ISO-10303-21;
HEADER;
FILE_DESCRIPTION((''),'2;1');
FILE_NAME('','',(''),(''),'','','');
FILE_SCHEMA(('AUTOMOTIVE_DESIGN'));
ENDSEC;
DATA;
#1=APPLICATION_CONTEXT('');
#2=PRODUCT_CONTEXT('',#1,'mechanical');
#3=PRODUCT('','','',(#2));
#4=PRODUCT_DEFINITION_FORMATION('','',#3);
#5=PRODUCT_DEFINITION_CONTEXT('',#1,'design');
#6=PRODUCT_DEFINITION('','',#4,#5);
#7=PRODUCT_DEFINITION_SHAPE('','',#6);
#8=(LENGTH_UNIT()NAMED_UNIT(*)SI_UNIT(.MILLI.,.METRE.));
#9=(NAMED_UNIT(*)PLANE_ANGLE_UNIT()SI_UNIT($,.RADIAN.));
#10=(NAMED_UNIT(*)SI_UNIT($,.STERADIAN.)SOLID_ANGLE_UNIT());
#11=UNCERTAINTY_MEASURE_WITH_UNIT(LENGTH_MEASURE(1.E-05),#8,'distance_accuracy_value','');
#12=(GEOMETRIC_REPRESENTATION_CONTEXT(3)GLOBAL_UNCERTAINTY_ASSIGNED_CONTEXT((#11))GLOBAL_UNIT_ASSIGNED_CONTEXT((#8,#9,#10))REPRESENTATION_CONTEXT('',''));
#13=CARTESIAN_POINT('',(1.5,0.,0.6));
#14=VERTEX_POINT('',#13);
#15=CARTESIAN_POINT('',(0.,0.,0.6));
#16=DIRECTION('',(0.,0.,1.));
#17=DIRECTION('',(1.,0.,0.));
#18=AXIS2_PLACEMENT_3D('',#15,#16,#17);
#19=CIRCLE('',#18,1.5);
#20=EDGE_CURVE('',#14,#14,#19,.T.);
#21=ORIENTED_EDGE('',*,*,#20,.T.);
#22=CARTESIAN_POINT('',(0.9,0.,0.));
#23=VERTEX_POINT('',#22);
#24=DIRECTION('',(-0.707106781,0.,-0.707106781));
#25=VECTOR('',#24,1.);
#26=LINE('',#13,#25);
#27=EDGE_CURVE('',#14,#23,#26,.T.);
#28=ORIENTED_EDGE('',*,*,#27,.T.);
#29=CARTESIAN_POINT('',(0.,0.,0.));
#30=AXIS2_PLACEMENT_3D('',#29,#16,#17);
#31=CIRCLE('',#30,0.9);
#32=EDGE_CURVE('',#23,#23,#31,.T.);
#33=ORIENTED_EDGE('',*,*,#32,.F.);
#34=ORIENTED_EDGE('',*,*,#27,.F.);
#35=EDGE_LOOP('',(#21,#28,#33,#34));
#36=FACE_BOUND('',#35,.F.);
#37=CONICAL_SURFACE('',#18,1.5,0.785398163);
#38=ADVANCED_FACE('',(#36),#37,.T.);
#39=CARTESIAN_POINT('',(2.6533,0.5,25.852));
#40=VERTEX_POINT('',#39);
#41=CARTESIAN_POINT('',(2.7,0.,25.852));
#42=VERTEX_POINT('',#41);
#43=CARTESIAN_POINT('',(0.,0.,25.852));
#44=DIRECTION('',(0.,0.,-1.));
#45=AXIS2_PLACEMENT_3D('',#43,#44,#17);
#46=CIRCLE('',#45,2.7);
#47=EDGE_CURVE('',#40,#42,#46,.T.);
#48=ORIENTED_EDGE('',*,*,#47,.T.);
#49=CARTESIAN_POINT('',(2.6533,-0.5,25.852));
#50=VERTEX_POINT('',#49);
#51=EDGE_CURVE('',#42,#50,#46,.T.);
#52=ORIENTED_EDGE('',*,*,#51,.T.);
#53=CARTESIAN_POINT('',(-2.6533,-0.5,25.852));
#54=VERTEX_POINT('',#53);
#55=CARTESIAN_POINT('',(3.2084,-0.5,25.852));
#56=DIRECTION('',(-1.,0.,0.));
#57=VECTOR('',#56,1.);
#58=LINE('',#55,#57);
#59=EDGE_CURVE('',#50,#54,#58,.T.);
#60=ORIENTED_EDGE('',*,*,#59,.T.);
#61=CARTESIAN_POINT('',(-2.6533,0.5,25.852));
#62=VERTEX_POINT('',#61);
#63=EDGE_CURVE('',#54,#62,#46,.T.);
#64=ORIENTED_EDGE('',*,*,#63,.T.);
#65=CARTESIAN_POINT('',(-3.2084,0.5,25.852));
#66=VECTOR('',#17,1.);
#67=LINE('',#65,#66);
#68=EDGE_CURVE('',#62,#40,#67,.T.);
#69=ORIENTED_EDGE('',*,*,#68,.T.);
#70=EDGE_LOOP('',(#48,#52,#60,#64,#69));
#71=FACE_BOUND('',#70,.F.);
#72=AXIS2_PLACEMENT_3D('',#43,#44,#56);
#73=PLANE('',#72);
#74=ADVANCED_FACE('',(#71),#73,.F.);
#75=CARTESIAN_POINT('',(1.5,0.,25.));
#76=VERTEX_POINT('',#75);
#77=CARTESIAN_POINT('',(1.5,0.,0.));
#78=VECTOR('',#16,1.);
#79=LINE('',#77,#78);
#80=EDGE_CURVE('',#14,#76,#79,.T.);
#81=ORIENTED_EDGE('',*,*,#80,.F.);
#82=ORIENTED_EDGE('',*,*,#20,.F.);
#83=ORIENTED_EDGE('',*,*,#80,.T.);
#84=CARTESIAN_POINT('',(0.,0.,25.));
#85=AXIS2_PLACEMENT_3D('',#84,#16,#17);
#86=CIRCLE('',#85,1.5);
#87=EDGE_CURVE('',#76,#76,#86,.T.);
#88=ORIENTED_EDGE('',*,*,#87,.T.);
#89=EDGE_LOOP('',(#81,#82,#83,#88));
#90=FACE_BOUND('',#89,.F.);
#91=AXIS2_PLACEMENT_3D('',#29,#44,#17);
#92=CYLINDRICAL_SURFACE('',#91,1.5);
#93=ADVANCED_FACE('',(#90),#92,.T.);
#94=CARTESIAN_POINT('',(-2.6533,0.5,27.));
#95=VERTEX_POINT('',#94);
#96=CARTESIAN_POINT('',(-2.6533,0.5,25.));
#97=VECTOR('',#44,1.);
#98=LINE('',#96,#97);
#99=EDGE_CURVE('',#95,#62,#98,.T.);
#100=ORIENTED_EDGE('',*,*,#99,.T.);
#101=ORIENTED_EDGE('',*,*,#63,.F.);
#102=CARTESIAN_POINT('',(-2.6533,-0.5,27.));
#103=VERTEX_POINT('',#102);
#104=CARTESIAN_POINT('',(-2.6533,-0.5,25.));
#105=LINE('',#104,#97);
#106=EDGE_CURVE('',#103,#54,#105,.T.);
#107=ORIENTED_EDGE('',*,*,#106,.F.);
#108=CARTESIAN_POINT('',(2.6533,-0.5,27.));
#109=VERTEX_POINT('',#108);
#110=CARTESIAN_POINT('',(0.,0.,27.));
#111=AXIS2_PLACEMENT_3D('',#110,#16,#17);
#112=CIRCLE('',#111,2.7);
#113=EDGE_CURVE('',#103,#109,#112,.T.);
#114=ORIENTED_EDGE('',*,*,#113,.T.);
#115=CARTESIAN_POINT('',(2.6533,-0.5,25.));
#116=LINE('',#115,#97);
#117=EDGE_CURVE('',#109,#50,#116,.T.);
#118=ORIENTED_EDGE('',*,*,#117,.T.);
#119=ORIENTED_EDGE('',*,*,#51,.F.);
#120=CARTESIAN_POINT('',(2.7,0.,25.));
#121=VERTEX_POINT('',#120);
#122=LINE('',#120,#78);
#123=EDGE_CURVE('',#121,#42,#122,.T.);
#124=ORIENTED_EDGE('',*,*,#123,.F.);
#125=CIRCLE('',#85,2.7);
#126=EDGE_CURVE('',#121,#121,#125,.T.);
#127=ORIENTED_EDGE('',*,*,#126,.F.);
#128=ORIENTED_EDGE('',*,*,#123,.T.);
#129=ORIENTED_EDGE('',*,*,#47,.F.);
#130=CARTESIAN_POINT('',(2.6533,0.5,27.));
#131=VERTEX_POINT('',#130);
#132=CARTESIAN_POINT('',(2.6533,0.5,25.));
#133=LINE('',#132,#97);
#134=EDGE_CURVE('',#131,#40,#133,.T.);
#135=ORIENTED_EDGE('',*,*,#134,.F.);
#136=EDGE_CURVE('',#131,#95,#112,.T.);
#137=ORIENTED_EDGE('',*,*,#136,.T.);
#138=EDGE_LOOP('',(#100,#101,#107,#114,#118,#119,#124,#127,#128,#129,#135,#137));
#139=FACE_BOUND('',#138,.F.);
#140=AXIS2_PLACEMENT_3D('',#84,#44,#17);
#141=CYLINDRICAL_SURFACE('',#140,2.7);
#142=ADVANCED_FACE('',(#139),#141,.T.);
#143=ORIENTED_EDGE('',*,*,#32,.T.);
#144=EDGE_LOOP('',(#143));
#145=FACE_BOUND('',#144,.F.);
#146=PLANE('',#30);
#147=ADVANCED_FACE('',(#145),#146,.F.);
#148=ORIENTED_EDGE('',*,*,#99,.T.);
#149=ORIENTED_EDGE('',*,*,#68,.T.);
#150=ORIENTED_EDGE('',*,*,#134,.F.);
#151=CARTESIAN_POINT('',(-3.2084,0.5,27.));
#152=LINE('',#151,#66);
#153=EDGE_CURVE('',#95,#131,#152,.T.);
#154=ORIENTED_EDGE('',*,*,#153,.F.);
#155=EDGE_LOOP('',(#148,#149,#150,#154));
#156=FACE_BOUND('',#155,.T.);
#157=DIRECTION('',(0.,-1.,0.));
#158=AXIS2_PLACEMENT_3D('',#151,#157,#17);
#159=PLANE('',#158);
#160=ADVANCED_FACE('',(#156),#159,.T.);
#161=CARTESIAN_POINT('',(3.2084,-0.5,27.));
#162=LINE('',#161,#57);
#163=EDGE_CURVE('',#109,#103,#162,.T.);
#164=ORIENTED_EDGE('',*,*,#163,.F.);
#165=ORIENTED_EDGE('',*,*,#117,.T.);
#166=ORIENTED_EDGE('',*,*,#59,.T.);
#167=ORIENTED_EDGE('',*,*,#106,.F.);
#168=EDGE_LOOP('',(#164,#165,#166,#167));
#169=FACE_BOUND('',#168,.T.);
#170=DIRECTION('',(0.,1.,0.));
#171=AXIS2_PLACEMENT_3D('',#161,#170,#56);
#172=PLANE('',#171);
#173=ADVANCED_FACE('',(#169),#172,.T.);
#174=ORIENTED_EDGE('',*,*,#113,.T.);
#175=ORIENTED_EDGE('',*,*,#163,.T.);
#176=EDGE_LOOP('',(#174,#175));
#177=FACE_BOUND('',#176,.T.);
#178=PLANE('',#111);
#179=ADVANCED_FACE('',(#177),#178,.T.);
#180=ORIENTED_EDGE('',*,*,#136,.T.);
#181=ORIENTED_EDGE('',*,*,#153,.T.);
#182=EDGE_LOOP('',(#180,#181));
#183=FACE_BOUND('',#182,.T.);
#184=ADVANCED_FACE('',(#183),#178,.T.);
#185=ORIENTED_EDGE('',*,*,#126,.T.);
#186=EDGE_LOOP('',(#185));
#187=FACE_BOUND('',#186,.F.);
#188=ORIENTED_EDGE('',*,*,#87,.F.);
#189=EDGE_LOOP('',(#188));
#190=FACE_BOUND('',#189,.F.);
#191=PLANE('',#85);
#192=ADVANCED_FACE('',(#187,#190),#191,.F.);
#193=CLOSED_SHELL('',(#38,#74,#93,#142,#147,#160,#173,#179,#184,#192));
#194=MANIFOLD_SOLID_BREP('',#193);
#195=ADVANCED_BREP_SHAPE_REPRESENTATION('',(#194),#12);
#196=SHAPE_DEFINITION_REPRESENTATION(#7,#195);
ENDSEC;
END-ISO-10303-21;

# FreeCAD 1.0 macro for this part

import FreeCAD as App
import Part
import Sketcher


def edges_at(feature, points):
    """Names of the edges that pass closest to the given points."""
    edges = feature.Shape.Edges
    near = lambda p: min(range(len(edges)), key=lambda i: edges[i].distToShape(Part.Vertex(*p))[0])
    return sorted({f"Edge{near(p) + 1}" for p in points})


def add_polygon(sketch, points):
    """Adds a closed chain of lines whose ends are joined by coincident constraints."""
    first, n = sketch.GeometryCount, len(points)
    for a, b in zip(points, points[1:] + points[:1]):
        sketch.addGeometry(Part.LineSegment(App.Vector(*a, 0), App.Vector(*b, 0)), False)
    for i in range(n):
        sketch.addConstraint(Sketcher.Constraint("Coincident", first + i, 2, first + (i + 1) % n, 1))

doc = App.newDocument("Part")
body = doc.addObject("PartDesign::Body", "Body")

# Sketch on XY plane
sketch1 = doc.addObject("Sketcher::SketchObject", "Sketch")
body.addObject(sketch1)
sketch1.AttachmentSupport = (doc.XY_Plane, [""])
sketch1.MapMode = "FlatFace"
sketch1.addGeometry(Part.Circle(App.Vector(0, 0, 0), App.Vector(0, 0, 1), 1.5), False)
sketch1.addConstraint([
    Sketcher.Constraint("Coincident", 0, 3, -1, 1),
    Sketcher.Constraint("Diameter", 0, 3.0),
])
pad1 = doc.addObject("PartDesign::Pad", "Pad")
body.addObject(pad1)
pad1.Profile = sketch1
pad1.Length = 25
doc.recompute()

chamfer = doc.addObject("PartDesign::Chamfer", "Chamfer")
body.addObject(chamfer)
chamfer.Base = (pad1, edges_at(pad1, [(-1.5, 0, 0)]))
chamfer.Size = 0.6

# Sketch on XY plane
sketch2 = doc.addObject("Sketcher::SketchObject", "Sketch001")
body.addObject(sketch2)
sketch2.AttachmentSupport = (doc.XY_Plane, [""])
sketch2.MapMode = "FlatFace"
sketch2.AttachmentOffset = App.Placement(App.Vector(0, 0, 25), App.Rotation())
sketch2.addGeometry(Part.Circle(App.Vector(0, 0, 0), App.Vector(0, 0, 1), 2.7), False)
sketch2.addConstraint([
    Sketcher.Constraint("Coincident", 0, 3, -1, 1),
    Sketcher.Constraint("Diameter", 0, 5.4),
])
pad2 = doc.addObject("PartDesign::Pad", "Pad001")
body.addObject(pad2)
pad2.Profile = sketch2
pad2.Length = 2

# Sketch on XY plane
sketch3 = doc.addObject("Sketcher::SketchObject", "Sketch002")
body.addObject(sketch3)
sketch3.AttachmentSupport = (doc.XY_Plane, [""])
sketch3.MapMode = "FlatFace"
sketch3.AttachmentOffset = App.Placement(App.Vector(0, 0, 27), App.Rotation())
add_polygon(sketch3, [(3.2, -0.5), (3.2, 0.5), (-3.2, 0.5), (-3.2, -0.5)])  # lines 0-3
sketch3.addConstraint([
    Sketcher.Constraint("Vertical", 0),
    Sketcher.Constraint("Horizontal", 1),
    Sketcher.Constraint("Vertical", 2),
    Sketcher.Constraint("Horizontal", 3),
    Sketcher.Constraint("Symmetric", 0, 2, 2, 2, -1, 1),
    Sketcher.Constraint("DistanceY", 0, 1, 0, 2, 1.0),
    Sketcher.Constraint("DistanceX", 1, 2, 1, 1, 6.4168),
])
pocket1 = doc.addObject("PartDesign::Pocket", "Pocket")
body.addObject(pocket1)
pocket1.Profile = sketch3
pocket1.Length = 1.148

doc.recompute()
